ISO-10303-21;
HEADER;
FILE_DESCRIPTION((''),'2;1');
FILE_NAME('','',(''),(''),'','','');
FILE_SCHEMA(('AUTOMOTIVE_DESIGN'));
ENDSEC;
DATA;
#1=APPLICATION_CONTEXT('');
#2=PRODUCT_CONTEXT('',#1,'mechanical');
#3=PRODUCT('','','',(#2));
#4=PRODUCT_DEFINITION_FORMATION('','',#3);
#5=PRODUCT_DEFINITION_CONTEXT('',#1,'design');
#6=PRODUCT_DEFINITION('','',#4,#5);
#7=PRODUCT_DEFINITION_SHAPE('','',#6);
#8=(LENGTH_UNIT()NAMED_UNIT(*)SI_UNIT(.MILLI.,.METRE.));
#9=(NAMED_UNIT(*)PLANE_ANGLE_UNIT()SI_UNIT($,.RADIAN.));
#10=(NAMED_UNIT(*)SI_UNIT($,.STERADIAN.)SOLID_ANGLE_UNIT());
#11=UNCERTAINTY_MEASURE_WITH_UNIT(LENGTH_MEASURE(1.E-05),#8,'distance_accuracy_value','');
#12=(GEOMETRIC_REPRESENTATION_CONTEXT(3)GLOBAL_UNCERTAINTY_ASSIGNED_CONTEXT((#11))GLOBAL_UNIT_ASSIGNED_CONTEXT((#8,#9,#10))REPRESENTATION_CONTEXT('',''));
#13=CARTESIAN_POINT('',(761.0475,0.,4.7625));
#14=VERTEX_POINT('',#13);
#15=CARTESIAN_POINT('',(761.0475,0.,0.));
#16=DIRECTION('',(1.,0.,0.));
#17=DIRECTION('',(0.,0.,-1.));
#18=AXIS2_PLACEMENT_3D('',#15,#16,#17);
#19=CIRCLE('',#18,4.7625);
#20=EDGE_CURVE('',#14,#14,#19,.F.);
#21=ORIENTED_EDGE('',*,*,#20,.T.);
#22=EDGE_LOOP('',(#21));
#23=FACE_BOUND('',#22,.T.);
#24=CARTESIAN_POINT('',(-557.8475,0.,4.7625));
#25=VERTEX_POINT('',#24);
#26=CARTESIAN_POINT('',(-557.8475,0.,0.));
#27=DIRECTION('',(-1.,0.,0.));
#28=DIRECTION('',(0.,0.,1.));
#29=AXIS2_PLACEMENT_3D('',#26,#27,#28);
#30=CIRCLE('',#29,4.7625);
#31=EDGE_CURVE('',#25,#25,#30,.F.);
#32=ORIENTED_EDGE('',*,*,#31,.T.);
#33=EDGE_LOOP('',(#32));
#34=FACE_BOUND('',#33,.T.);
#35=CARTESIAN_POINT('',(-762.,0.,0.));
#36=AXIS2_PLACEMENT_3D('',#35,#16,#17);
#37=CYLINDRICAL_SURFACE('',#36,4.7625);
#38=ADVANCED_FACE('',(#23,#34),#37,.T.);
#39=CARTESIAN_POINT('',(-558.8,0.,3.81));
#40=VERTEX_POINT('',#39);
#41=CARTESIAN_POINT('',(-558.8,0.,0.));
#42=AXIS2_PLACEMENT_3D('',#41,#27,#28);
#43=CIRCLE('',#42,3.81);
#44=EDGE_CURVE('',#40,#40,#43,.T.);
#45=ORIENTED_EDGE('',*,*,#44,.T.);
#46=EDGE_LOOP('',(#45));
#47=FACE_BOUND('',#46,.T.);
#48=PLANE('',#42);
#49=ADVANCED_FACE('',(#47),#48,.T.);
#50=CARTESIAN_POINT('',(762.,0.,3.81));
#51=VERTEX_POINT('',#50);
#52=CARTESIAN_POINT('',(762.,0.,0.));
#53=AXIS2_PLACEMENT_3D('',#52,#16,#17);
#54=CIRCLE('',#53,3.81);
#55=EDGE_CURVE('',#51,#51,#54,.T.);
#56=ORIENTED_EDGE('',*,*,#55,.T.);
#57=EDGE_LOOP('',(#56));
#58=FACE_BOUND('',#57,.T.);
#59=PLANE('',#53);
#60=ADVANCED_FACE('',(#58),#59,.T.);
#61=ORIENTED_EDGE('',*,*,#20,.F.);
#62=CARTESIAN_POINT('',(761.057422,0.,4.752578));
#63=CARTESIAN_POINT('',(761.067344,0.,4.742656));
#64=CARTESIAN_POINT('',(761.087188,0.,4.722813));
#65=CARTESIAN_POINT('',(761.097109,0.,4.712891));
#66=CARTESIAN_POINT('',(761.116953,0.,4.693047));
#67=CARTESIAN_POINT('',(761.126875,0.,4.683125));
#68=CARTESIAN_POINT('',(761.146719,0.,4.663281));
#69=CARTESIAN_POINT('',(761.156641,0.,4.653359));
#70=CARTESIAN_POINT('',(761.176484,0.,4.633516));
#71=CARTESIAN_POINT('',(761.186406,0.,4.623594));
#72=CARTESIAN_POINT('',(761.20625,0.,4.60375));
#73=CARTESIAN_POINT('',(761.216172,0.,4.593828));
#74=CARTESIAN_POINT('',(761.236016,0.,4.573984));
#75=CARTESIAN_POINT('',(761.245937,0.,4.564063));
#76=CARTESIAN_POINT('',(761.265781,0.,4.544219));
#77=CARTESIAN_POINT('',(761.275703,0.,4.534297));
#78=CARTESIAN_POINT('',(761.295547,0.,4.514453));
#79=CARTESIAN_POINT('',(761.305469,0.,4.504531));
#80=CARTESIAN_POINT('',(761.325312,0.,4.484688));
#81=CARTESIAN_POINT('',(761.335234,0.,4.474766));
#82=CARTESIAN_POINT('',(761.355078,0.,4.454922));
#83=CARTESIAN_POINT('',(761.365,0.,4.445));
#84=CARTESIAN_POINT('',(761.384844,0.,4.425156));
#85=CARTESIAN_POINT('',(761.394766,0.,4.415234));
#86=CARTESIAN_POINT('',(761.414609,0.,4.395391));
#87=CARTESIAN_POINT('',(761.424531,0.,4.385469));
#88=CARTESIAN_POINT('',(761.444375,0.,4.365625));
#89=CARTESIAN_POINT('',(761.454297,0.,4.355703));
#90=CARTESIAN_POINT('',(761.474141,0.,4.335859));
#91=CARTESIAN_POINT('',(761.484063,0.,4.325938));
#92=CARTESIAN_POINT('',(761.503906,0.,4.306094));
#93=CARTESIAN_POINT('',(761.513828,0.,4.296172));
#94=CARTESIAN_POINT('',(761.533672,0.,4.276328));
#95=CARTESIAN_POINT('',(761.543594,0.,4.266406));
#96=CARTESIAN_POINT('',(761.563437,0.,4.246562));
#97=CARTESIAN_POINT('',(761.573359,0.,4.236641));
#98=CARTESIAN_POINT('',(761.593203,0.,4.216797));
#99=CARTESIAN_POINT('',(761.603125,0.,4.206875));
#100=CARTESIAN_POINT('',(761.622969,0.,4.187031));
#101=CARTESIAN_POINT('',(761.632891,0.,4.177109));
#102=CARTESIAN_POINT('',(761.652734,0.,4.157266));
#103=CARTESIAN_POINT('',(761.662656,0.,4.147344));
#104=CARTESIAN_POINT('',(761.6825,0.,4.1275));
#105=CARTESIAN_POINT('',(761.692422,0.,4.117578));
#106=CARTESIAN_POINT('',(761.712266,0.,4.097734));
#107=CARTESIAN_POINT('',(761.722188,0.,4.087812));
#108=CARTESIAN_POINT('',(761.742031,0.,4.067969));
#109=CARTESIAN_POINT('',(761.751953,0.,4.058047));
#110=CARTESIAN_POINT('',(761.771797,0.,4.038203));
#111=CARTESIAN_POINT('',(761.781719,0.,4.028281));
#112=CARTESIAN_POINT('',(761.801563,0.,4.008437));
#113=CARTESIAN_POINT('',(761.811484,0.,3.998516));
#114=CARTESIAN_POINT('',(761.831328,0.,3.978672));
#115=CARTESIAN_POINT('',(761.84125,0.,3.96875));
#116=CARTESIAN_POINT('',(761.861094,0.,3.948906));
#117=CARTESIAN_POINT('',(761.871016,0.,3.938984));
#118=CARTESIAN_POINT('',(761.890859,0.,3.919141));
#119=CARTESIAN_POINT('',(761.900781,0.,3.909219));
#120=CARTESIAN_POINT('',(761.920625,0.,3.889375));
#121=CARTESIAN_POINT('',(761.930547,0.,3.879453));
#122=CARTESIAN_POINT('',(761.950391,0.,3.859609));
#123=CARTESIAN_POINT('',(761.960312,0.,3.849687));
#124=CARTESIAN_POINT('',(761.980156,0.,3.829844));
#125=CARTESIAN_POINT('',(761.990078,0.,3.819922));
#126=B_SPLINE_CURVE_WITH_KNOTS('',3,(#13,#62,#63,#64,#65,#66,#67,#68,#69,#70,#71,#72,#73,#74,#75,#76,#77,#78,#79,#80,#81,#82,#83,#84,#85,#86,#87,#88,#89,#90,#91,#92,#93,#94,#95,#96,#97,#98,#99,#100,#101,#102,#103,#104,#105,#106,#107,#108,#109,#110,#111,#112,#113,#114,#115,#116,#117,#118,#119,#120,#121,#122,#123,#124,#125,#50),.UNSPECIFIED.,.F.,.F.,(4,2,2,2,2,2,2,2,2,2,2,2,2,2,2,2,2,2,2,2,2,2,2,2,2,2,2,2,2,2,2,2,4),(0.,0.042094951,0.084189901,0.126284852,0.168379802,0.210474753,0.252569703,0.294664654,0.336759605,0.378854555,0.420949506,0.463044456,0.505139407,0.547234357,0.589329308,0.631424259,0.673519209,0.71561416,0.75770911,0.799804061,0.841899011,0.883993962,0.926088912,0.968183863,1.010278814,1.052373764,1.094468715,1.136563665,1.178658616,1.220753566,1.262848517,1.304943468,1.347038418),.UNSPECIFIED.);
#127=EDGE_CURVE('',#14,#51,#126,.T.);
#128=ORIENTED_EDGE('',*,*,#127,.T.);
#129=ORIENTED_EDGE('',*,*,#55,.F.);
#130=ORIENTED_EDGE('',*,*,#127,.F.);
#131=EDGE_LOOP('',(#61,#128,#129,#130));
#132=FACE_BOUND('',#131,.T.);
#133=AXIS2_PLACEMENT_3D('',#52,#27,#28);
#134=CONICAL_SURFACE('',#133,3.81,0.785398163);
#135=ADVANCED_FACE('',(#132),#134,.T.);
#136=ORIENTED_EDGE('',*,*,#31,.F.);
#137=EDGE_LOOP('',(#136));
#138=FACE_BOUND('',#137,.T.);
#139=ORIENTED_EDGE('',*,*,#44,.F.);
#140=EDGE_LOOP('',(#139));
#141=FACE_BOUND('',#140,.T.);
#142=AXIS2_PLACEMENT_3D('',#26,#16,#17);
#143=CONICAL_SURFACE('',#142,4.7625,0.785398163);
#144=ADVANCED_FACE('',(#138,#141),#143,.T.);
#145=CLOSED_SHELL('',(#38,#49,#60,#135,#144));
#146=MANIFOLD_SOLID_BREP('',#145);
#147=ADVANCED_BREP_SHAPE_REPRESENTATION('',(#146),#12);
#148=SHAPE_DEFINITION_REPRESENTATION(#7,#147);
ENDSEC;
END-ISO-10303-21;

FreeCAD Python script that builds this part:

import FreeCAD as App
import Part
import Sketcher

V = App.Vector
Q = App.Units.Quantity


def edges_at(feature, points):
    """Names of the edges that pass closest to the given points."""
    edges = feature.Shape.Edges
    near = lambda p: min(range(len(edges)), key=lambda i: edges[i].distToShape(Part.Vertex(*p))[0])
    return sorted({f"Edge{near(p) + 1}" for p in points})

doc = App.newDocument("Part")
params = doc.addObject("Spreadsheet::Sheet", "Params")
for row, (alias, value) in enumerate([
    ("sketch1_diameter", "0.375 in"),
    ("pad1_length", "30 in"),
    ("pad1_length2", "30 in"),
    ("chamfer_size", "0.0375 in"),
    ("pocket1_length", "8 in"),
    ("chamfer2_size", "0.0375 in"),
], start=1):
    params.set(f"A{row}", alias)
    params.set(f"B{row}", "=" + value)
    params.setAlias(f"B{row}", alias)

body = doc.addObject("PartDesign::Body", "Body")

# Sketch on YZ plane
sketch1 = body.newObject("Sketcher::SketchObject", "Sketch")
sketch1.AttachmentSupport = (doc.getObject("YZ_Plane"), [""])
sketch1.MapMode = "FlatFace"
sketch1.addGeometry(Part.Circle(V(0, 0, 0), V(0, 0, 1), 4.8), False)
sketch1.addConstraint(Sketcher.Constraint("Coincident", 0, 3, -1, 1))
sketch1.addConstraint(Sketcher.Constraint("Diameter", 0, Q("0.375 in")))
sketch1.setExpression("Constraints[1]", "Params.sketch1_diameter")
pad1 = body.newObject("PartDesign::Pad", "Pad")
pad1.Profile = sketch1
pad1.Type = "TwoLengths"
pad1.setExpression("Length", "Params.pad1_length")
pad1.setExpression("Length2", "Params.pad1_length2")
doc.recompute()

chamfer = body.newObject("PartDesign::Chamfer", "Chamfer")
chamfer.Base = (pad1, edges_at(pad1, [(-762, 0, 4.763), (762, 0, 4.763)]))
chamfer.setExpression("Size", "Params.chamfer_size")

# Sketch on YZ plane
sketch2 = body.newObject("Sketcher::SketchObject", "Sketch001")
sketch2.AttachmentSupport = (doc.getObject("YZ_Plane"), [""])
sketch2.MapMode = "FlatFace"
sketch2.AttachmentOffset = App.Placement(V(0, 0, -30 * 25.4), App.Rotation())
sketch2.addGeometry(Part.Circle(V(0, 0, 0), V(0, 0, 1), 13), False)
sketch2.addConstraint(Sketcher.Constraint("Coincident", 0, 3, -1, 1))
sketch2.addConstraint(Sketcher.Constraint("Diameter", 0, Q("25.081668 mm")))
pocket1 = body.newObject("PartDesign::Pocket", "Pocket")
pocket1.Profile = sketch2
pocket1.setExpression("Length", "Params.pocket1_length")
pocket1.Reversed = True
doc.recompute()

chamfer2 = body.newObject("PartDesign::Chamfer", "Chamfer001")
chamfer2.Base = (pocket1, edges_at(pocket1, [(-558.8, 0, 4.763)]))
chamfer2.setExpression("Size", "Params.chamfer2_size")

doc.recompute()
